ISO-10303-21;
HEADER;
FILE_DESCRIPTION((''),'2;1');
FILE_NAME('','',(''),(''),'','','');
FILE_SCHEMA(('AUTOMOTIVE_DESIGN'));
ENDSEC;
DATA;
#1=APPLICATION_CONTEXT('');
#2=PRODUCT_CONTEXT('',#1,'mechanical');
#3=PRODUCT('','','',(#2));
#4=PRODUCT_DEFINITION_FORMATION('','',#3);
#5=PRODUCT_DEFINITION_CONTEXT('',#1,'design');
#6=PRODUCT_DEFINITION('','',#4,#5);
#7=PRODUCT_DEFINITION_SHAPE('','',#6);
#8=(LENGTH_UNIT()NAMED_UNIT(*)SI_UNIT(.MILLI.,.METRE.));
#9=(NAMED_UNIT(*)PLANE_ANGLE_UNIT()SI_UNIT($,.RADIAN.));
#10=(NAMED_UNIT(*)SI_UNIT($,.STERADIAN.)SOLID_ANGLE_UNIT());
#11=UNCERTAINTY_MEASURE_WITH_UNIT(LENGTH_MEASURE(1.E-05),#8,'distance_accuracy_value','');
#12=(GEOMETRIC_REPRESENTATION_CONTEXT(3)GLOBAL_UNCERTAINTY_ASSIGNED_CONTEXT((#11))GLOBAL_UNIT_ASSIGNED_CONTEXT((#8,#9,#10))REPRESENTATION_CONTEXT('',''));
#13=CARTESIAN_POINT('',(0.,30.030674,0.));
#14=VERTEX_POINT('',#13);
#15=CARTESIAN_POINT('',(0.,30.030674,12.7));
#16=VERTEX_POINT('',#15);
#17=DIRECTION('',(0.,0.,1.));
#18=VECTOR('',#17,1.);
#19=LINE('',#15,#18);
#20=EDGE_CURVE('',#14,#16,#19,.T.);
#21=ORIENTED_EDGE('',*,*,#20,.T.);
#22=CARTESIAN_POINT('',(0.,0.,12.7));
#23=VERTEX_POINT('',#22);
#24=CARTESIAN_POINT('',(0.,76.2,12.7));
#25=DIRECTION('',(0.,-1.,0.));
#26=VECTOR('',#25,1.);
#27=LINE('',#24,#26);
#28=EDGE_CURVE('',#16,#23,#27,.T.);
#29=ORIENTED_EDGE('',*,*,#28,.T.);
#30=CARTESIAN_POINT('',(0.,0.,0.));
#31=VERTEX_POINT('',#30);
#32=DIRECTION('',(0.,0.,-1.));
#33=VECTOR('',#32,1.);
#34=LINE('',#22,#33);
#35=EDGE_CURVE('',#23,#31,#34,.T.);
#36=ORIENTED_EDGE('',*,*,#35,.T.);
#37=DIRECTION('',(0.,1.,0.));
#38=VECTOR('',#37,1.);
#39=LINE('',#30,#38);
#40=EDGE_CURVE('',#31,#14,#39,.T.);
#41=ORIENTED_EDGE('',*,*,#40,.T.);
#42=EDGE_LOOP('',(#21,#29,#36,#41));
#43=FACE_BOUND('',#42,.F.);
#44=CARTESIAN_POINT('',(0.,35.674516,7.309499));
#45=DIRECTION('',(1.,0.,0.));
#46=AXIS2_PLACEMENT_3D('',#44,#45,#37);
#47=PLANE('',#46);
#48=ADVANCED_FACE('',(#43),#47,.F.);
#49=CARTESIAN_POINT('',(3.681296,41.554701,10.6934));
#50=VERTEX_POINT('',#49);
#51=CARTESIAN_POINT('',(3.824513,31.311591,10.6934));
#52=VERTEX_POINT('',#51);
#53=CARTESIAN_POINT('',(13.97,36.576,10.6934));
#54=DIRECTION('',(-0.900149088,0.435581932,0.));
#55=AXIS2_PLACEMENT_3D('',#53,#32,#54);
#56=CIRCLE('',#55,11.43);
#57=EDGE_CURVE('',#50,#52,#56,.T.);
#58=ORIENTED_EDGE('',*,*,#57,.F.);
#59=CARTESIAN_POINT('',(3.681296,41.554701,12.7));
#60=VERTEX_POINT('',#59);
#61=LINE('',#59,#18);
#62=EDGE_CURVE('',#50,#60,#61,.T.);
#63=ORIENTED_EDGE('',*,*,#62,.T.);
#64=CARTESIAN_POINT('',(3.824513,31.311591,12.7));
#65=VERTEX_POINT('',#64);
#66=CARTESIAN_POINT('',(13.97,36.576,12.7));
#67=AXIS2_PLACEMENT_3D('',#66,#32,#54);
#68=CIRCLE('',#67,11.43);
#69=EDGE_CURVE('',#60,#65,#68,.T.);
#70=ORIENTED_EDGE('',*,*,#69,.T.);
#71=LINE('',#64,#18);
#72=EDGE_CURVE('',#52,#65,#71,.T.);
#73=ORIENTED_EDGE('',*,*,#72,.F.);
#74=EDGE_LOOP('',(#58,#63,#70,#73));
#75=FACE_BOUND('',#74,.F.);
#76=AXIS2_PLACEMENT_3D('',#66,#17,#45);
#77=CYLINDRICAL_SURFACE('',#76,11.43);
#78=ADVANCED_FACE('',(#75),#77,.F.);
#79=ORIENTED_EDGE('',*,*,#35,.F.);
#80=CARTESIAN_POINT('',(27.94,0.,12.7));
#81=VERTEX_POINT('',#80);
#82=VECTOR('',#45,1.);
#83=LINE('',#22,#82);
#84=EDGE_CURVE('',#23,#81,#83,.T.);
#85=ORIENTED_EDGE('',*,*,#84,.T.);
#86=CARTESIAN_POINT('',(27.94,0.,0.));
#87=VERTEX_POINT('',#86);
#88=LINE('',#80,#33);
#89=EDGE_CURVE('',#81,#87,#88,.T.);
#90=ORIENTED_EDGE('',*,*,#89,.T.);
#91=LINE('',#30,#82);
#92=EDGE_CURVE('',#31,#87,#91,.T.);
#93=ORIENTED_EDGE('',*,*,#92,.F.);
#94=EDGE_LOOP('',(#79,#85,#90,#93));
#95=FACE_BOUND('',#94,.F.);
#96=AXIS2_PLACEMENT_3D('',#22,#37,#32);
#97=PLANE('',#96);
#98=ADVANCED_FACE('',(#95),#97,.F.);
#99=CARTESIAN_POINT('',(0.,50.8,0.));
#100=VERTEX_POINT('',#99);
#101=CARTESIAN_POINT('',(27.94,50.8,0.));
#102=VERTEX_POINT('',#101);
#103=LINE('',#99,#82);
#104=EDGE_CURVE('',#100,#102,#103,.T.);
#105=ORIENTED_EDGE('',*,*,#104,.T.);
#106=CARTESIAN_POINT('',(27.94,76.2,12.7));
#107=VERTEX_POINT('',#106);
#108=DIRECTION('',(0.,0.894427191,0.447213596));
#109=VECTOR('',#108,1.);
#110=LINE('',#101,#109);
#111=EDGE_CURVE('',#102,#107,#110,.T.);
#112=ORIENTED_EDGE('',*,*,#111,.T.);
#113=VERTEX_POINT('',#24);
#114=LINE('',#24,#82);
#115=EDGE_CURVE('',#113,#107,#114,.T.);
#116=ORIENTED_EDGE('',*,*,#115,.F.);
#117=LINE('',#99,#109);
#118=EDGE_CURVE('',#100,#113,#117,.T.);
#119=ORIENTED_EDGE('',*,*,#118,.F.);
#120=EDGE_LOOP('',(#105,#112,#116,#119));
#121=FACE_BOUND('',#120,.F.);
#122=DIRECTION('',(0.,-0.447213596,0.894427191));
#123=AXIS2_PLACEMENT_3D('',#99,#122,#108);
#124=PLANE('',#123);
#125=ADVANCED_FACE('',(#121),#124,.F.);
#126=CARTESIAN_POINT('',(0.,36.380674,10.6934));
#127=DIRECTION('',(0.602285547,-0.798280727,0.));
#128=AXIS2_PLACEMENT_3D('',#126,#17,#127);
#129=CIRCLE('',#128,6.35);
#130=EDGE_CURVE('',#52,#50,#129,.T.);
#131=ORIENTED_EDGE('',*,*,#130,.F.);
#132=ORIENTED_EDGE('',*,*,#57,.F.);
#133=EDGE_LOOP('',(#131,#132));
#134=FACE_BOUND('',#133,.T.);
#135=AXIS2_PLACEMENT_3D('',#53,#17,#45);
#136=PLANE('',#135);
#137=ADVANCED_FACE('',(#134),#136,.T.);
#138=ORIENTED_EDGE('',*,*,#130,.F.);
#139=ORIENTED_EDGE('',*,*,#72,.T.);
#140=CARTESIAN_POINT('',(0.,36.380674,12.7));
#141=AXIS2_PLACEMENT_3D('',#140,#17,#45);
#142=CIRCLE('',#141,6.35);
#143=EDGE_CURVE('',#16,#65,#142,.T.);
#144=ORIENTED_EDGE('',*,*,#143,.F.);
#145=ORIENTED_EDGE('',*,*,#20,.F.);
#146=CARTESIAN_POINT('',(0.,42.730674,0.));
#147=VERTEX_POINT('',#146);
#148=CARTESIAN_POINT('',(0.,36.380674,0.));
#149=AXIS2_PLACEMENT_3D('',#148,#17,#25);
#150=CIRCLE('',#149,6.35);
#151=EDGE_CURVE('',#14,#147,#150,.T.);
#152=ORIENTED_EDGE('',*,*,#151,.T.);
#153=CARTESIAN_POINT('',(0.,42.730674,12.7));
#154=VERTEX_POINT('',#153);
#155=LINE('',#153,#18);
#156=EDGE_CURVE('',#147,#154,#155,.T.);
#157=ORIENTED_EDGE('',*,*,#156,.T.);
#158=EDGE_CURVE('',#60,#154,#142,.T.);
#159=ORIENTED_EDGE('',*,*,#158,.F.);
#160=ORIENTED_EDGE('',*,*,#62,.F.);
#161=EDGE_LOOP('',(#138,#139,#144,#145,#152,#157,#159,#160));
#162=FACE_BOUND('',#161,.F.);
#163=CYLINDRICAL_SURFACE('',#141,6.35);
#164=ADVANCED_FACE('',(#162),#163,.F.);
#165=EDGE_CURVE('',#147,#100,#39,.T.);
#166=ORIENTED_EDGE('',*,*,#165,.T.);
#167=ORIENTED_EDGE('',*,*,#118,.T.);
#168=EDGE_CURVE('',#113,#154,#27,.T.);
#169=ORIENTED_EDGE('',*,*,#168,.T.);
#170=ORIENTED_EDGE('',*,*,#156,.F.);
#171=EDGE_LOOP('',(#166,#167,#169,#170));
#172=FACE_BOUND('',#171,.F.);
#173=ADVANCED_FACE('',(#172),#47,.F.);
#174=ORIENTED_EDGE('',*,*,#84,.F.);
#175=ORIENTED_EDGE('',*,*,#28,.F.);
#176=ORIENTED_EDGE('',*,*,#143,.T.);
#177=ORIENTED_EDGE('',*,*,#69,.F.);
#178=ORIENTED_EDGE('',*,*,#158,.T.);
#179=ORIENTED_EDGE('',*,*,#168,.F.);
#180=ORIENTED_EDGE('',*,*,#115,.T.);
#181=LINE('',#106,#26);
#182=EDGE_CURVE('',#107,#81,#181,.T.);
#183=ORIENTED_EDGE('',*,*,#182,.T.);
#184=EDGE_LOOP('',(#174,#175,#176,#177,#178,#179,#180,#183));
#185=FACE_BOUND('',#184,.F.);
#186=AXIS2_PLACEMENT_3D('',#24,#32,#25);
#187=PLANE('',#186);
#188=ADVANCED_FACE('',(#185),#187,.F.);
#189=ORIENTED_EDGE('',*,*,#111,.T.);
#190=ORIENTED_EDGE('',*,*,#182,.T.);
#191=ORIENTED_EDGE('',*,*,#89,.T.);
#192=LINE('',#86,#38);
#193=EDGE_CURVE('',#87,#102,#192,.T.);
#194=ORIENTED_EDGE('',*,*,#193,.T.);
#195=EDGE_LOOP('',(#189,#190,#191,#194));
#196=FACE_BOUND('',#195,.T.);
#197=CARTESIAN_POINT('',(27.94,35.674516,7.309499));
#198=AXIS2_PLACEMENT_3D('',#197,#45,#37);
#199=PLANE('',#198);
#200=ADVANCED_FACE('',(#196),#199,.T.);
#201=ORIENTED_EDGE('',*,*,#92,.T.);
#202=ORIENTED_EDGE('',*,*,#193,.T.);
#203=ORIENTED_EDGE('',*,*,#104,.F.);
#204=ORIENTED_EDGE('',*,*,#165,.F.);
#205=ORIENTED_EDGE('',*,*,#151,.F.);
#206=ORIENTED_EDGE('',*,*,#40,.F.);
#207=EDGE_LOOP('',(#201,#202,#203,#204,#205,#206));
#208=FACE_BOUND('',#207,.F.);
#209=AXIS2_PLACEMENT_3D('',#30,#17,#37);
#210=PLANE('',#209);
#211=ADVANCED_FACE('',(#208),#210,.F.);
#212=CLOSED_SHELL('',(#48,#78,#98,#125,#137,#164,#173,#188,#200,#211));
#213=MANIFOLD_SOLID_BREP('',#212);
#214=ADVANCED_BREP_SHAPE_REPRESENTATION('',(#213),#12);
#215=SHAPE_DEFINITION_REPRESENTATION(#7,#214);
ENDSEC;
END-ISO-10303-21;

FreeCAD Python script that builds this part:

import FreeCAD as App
import Part
import Sketcher

V = App.Vector
Q = App.Units.Quantity


def add_polygon(sketch, points):
    """Adds a closed chain of lines whose ends are joined by coincident constraints."""
    first, n = sketch.GeometryCount, len(points)
    for a, b in zip(points, points[1:] + points[:1]):
        sketch.addGeometry(Part.LineSegment(App.Vector(*a, 0), App.Vector(*b, 0)), False)
    for i in range(n):
        sketch.addConstraint(Sketcher.Constraint("Coincident", first + i, 2, first + (i + 1) % n, 1))

doc = App.newDocument("Part")
body = doc.addObject("PartDesign::Body", "Body")

# Sketch on YZ plane
sketch1 = body.newObject("Sketcher::SketchObject", "Sketch")
sketch1.AttachmentSupport = (doc.getObject("YZ_Plane"), [""])
sketch1.MapMode = "FlatFace"
add_polygon(sketch1, [(0, 12.7), (0, 0), (50.8, 0), (76.2, 12.7)])  # lines 0-3
sketch1.addConstraint([
    Sketcher.Constraint("Vertical", 0),
    Sketcher.Constraint("Horizontal", 1),
    Sketcher.Constraint("Horizontal", 3),
    Sketcher.Constraint("Coincident", 0, 2, -1, 1),
    Sketcher.Constraint("DistanceX", 1, 1, 1, 2, Q("2 in")),
    Sketcher.Constraint("DistanceX", 3, 2, 3, 1, Q("3 in")),
    Sketcher.Constraint("DistanceY", 0, 2, 0, 1, Q("0.5 in")),
])
pad1 = body.newObject("PartDesign::Pad", "Pad")
pad1.Profile = sketch1
pad1.Length = Q("1.1 in")

# Sketch on XY plane
sketch2 = body.newObject("Sketcher::SketchObject", "Sketch001")
sketch2.AttachmentSupport = (doc.getObject("XY_Plane"), [""])
sketch2.MapMode = "FlatFace"
sketch2.AttachmentOffset = App.Placement(V(0, 0, 0.5 * 25.4), App.Rotation())
sketch2.addGeometry(Part.Circle(V(13.97, 36.576, 0), V(0, 0, 1), 11.43), False)
sketch2.addConstraint([
    Sketcher.Constraint("Diameter", 0, Q("0.9 in")),
    Sketcher.Constraint("DistanceX", -1, 1, 0, 3, Q("0.55 in")),
    Sketcher.Constraint("DistanceY", -1, 1, 0, 3, Q("1.44 in")),
])
pocket1 = body.newObject("PartDesign::Pocket", "Pocket")
pocket1.Profile = sketch2
pocket1.Length = Q("0.079 in")

# Sketch on XY plane
sketch3 = body.newObject("Sketcher::SketchObject", "Sketch002")
sketch3.AttachmentSupport = (doc.getObject("XY_Plane"), [""])
sketch3.MapMode = "FlatFace"
sketch3.AttachmentOffset = App.Placement(V(0, 0, 0.5 * 25.4), App.Rotation())
sketch3.addGeometry(Part.Circle(V(0, 36.380674, 0), V(0, 0, 1), 6.35), False)
sketch3.addConstraint([
    Sketcher.Constraint("PointOnObject", 0, 3, -2),
    Sketcher.Constraint("Diameter", 0, Q("0.5 in")),
    Sketcher.Constraint("DistanceY", -1, 1, 0, 3, Q("36.380674 mm")),
])
pocket2 = body.newObject("PartDesign::Pocket", "Pocket001")
pocket2.Profile = sketch3
pocket2.Length = Q("1 in")

doc.recompute()
